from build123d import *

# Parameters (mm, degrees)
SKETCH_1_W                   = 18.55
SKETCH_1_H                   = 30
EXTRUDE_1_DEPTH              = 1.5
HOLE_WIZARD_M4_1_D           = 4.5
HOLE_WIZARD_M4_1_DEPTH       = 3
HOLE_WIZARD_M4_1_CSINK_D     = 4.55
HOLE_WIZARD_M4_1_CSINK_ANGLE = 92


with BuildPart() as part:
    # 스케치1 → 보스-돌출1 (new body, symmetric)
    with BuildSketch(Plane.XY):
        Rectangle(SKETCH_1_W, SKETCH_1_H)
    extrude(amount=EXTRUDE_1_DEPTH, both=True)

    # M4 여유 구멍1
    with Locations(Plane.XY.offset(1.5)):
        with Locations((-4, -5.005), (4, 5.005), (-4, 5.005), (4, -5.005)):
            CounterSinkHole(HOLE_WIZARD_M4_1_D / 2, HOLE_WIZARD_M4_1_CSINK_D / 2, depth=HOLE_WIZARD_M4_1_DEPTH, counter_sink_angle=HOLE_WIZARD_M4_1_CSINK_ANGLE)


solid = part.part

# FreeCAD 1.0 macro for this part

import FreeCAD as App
import Part
import Sketcher

V = App.Vector


def add_polygon(sketch, points):
    """Adds a closed chain of lines whose ends are joined by coincident constraints."""
    first, n = sketch.GeometryCount, len(points)
    for a, b in zip(points, points[1:] + points[:1]):
        sketch.addGeometry(Part.LineSegment(App.Vector(*a, 0), App.Vector(*b, 0)), False)
    for i in range(n):
        sketch.addConstraint(Sketcher.Constraint("Coincident", first + i, 2, first + (i + 1) % n, 1))

doc = App.newDocument("Part")
body = doc.addObject("PartDesign::Body", "Body")

# Sketch on XY plane
sketch1 = body.newObject("Sketcher::SketchObject", "Sketch")
sketch1.AttachmentSupport = (doc.getObject("XY_Plane"), [""])
sketch1.MapMode = "FlatFace"
add_polygon(sketch1, [(-9, 15), (-9, -15), (9, -15), (9, 15)])  # lines 0-3
sketch1.addConstraint([
    Sketcher.Constraint("Vertical", 0),
    Sketcher.Constraint("Horizontal", 1),
    Sketcher.Constraint("Vertical", 2),
    Sketcher.Constraint("Horizontal", 3),
    Sketcher.Constraint("Symmetric", 0, 2, 2, 2, -1, 1),
    Sketcher.Constraint("DistanceY", 0, 2, 0, 1, 30.0),
    Sketcher.Constraint("DistanceX", 1, 1, 1, 2, 18.55),
])
pad1 = body.newObject("PartDesign::Pad", "Pad")
pad1.Profile = sketch1
pad1.Length = 3
pad1.Midplane = True

# Sketch on XY plane
sketch2 = body.newObject("Sketcher::SketchObject", "Sketch001")
sketch2.AttachmentSupport = (doc.getObject("XY_Plane"), [""])
sketch2.MapMode = "FlatFace"
sketch2.AttachmentOffset = App.Placement(V(0, 0, 1.5), App.Rotation())
sketch2.addGeometry([
    Part.Circle(V(-4, -5, 0), V(0, 0, 1), 2.2),
    Part.Circle(V(4, 5, 0), V(0, 0, 1), 2.2),
    Part.Circle(V(-4, 5, 0), V(0, 0, 1), 2.2),
    Part.Circle(V(4, -5, 0), V(0, 0, 1), 2.2),
], False)
sketch2.addConstraint([
    Sketcher.Constraint("Equal", 0, 1),
    Sketcher.Constraint("Equal", 1, 2),
    Sketcher.Constraint("Equal", 2, 3),
    Sketcher.Constraint("Symmetric", 0, 3, 1, 3, -1, 1),
    Sketcher.Constraint("Symmetric", 2, 3, 3, 3, -1, 1),
    Sketcher.Constraint("Symmetric", 1, 3, 2, 3, -2),
    Sketcher.Constraint("Diameter", 0, 4.5),
    Sketcher.Constraint("DistanceX", 0, 3, -1, 1, 4.0),
    Sketcher.Constraint("DistanceY", 0, 3, 1, 3, 10.01),
])
doc.recompute()
hole = body.newObject("PartDesign::Hole", "Hole")
hole.Profile = sketch2
hole.ThreadType = "None"
hole.Diameter = 4.5
hole.DepthType = "Dimension"
hole.Depth = 3
hole.DrillPoint = "Flat"
hole.HoleCutType = "Countersink"
hole.HoleCutDiameter = 4.55
hole.HoleCutCountersinkAngle = 92

doc.recompute()
